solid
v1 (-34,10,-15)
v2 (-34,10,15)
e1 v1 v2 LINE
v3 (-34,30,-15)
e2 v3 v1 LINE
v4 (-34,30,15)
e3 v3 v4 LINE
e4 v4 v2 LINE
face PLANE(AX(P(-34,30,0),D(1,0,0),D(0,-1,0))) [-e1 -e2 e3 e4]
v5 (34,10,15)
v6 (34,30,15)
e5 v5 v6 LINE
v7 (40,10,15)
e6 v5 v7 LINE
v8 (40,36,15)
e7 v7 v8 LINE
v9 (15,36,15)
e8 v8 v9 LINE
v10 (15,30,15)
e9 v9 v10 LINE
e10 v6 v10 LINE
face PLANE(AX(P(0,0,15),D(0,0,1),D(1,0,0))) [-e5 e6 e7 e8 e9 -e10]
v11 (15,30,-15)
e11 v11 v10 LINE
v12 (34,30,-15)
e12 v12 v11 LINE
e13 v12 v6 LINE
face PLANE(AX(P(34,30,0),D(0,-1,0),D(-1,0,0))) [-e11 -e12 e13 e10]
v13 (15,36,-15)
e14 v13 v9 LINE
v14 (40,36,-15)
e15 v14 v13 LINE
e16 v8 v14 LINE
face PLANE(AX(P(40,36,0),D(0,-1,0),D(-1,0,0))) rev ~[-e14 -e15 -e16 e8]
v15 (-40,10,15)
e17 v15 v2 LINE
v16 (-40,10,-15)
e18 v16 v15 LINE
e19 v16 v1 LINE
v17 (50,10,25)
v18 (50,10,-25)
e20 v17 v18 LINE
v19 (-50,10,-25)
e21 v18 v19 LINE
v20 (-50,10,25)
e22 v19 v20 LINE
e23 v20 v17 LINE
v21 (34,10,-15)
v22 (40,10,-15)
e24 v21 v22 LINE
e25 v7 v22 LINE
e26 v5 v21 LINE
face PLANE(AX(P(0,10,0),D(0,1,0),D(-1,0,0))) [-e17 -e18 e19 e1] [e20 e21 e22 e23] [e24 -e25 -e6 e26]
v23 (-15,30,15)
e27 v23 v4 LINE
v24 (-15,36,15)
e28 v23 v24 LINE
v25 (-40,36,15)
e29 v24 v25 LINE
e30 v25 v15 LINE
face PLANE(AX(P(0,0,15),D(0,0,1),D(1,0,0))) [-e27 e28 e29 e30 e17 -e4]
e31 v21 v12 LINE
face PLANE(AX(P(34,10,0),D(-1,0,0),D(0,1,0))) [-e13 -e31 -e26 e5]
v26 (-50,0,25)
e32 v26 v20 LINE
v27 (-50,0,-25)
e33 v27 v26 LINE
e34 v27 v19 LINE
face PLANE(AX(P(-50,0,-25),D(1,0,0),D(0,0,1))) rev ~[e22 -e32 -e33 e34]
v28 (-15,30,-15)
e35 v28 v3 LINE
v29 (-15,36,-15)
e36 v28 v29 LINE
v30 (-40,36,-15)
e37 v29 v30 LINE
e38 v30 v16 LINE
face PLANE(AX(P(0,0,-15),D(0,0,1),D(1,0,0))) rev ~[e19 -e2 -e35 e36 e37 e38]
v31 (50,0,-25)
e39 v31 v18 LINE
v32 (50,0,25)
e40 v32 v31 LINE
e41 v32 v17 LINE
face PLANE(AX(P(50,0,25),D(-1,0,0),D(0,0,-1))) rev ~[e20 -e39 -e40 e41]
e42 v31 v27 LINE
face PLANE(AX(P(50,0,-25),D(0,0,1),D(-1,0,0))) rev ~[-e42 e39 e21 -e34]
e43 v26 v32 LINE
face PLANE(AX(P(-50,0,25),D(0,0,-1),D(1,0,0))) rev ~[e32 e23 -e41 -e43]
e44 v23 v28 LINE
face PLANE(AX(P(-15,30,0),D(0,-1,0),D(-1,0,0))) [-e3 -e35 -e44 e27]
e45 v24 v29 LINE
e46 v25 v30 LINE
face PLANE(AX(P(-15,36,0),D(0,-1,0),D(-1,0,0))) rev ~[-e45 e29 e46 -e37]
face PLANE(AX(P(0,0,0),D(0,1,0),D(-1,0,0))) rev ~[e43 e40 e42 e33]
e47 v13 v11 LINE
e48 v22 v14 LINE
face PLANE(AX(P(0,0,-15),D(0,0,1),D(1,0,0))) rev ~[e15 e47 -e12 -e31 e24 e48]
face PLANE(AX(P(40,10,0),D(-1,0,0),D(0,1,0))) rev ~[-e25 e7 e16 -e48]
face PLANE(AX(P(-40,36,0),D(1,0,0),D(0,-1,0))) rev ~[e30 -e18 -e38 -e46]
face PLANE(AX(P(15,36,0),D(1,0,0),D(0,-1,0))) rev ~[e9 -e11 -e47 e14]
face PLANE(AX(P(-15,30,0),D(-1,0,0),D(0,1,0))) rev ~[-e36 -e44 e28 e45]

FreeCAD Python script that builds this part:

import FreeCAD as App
import Part
import Sketcher
Q = App.Units.Quantity

doc = App.newDocument("Part")
params = doc.addObject("Spreadsheet::Sheet", "Params")
for row, (alias, value) in enumerate([
    ("sketch1_width", "100 mm"),
    ("sketch1_height", "50 mm"),
    ("pad1_length", "10 mm"),
    ("sketch2_width", "6 mm"),
    ("sketch2_height", "20 mm"),
    ("pad2_length", "30 mm"),
], start=1):
    params.set(f"A{row}", alias)
    params.set(f"B{row}", "=" + value)
    params.setAlias(f"B{row}", alias)

body = doc.addObject("PartDesign::Body", "Body")

# Sketch on XZ plane
sketch1 = body.newObject("Sketcher::SketchObject", "Sketch")
sketch1.AttachmentSupport = (doc.getObject("XZ_Plane"), [""])
sketch1.MapMode = "FlatFace"
sketch1.addGeometry(Part.LineSegment(App.Vector(50, 25, 0), App.Vector(50, -25, 0)), False)
sketch1.addGeometry(Part.LineSegment(App.Vector(50, -25, 0), App.Vector(-50, -25, 0)), False)
sketch1.addGeometry(Part.LineSegment(App.Vector(-50, -25, 0), App.Vector(-50, 25, 0)), False)
sketch1.addGeometry(Part.LineSegment(App.Vector(-50, 25, 0), App.Vector(50, 25, 0)), False)
sketch1.addConstraint(Sketcher.Constraint("Coincident", 0, 2, 1, 1))
sketch1.addConstraint(Sketcher.Constraint("Coincident", 1, 2, 2, 1))
sketch1.addConstraint(Sketcher.Constraint("Coincident", 2, 2, 3, 1))
sketch1.addConstraint(Sketcher.Constraint("Coincident", 3, 2, 0, 1))
sketch1.addConstraint(Sketcher.Constraint("Vertical", 0))
sketch1.addConstraint(Sketcher.Constraint("Horizontal", 1))
sketch1.addConstraint(Sketcher.Constraint("Vertical", 2))
sketch1.addConstraint(Sketcher.Constraint("Horizontal", 3))
sketch1.addConstraint(Sketcher.Constraint("Symmetric", 0, 2, 2, 2, -1, 1))
sketch1.addConstraint(Sketcher.Constraint("DistanceX", 1, 2, 1, 1, Q("100 mm")))
sketch1.addConstraint(Sketcher.Constraint("DistanceY", 0, 2, 0, 1, Q("50 mm")))
sketch1.setExpression("Constraints[9]", "Params.sketch1_width")
sketch1.setExpression("Constraints[10]", "Params.sketch1_height")
pad1 = body.newObject("PartDesign::Pad", "Pad")
pad1.Profile = sketch1
pad1.setExpression("Length", "Params.pad1_length")
pad1.Reversed = True

# Sketch on XY plane
sketch2 = body.newObject("Sketcher::SketchObject", "Sketch001")
sketch2.AttachmentSupport = (doc.getObject("XY_Plane"), [""])
sketch2.MapMode = "FlatFace"
sketch2.addGeometry(Part.LineSegment(App.Vector(-40, 36, 0), App.Vector(-40, 10, 0)), False)
sketch2.addGeometry(Part.LineSegment(App.Vector(-40, 10, 0), App.Vector(-34, 10, 0)), False)
sketch2.addGeometry(Part.LineSegment(App.Vector(-34, 10, 0), App.Vector(-34, 30, 0)), False)
sketch2.addGeometry(Part.LineSegment(App.Vector(-34, 30, 0), App.Vector(-15, 30, 0)), False)
sketch2.addGeometry(Part.LineSegment(App.Vector(-15, 30, 0), App.Vector(-15, 36, 0)), False)
sketch2.addGeometry(Part.LineSegment(App.Vector(-15, 36, 0), App.Vector(-40, 36, 0)), False)
sketch2.addGeometry(Part.LineSegment(App.Vector(40, 36, 0), App.Vector(15, 36, 0)), False)
sketch2.addGeometry(Part.LineSegment(App.Vector(15, 36, 0), App.Vector(15, 30, 0)), False)
sketch2.addGeometry(Part.LineSegment(App.Vector(15, 30, 0), App.Vector(34, 30, 0)), False)
sketch2.addGeometry(Part.LineSegment(App.Vector(34, 30, 0), App.Vector(34, 10, 0)), False)
sketch2.addGeometry(Part.LineSegment(App.Vector(34, 10, 0), App.Vector(40, 10, 0)), False)
sketch2.addGeometry(Part.LineSegment(App.Vector(40, 10, 0), App.Vector(40, 36, 0)), False)
sketch2.addConstraint(Sketcher.Constraint("Coincident", 0, 2, 1, 1))
sketch2.addConstraint(Sketcher.Constraint("Coincident", 1, 2, 2, 1))
sketch2.addConstraint(Sketcher.Constraint("Coincident", 2, 2, 3, 1))
sketch2.addConstraint(Sketcher.Constraint("Coincident", 3, 2, 4, 1))
sketch2.addConstraint(Sketcher.Constraint("Coincident", 4, 2, 5, 1))
sketch2.addConstraint(Sketcher.Constraint("Coincident", 5, 2, 0, 1))
sketch2.addConstraint(Sketcher.Constraint("Coincident", 6, 2, 7, 1))
sketch2.addConstraint(Sketcher.Constraint("Coincident", 7, 2, 8, 1))
sketch2.addConstraint(Sketcher.Constraint("Coincident", 8, 2, 9, 1))
sketch2.addConstraint(Sketcher.Constraint("Coincident", 9, 2, 10, 1))
sketch2.addConstraint(Sketcher.Constraint("Coincident", 10, 2, 11, 1))
sketch2.addConstraint(Sketcher.Constraint("Coincident", 11, 2, 6, 1))
sketch2.addConstraint(Sketcher.Constraint("Vertical", 0))
sketch2.addConstraint(Sketcher.Constraint("Horizontal", 1))
sketch2.addConstraint(Sketcher.Constraint("Vertical", 2))
sketch2.addConstraint(Sketcher.Constraint("Horizontal", 3))
sketch2.addConstraint(Sketcher.Constraint("Vertical", 4))
sketch2.addConstraint(Sketcher.Constraint("Horizontal", 5))
sketch2.addConstraint(Sketcher.Constraint("Horizontal", 6))
sketch2.addConstraint(Sketcher.Constraint("Vertical", 7))
sketch2.addConstraint(Sketcher.Constraint("Horizontal", 8))
sketch2.addConstraint(Sketcher.Constraint("Vertical", 9))
sketch2.addConstraint(Sketcher.Constraint("Horizontal", 10))
sketch2.addConstraint(Sketcher.Constraint("Vertical", 11))
sketch2.addConstraint(Sketcher.Constraint("Symmetric", 4, 2, 6, 2, -2))
sketch2.addConstraint(Sketcher.Constraint("Symmetric", 2, 2, 8, 2, -2))
sketch2.addConstraint(Sketcher.Constraint("Symmetric", 0, 2, 10, 2, -2))
sketch2.addConstraint(Sketcher.Constraint("Equal", 10, 4))
sketch2.addConstraint(Sketcher.Constraint("DistanceX", 1, 1, 1, 2, Q("6 mm")))
sketch2.addConstraint(Sketcher.Constraint("DistanceY", 2, 1, 2, 2, Q("20 mm")))
sketch2.addConstraint(Sketcher.Constraint("DistanceY", -1, 1, 2, 2, Q("30 mm")))
sketch2.addConstraint(Sketcher.Constraint("DistanceX", 4, 2, 6, 2, Q("30 mm")))
sketch2.addConstraint(Sketcher.Constraint("DistanceX", 2, 2, 8, 2, Q("68 mm")))
sketch2.setExpression("Constraints[28]", "Params.sketch2_width")
sketch2.setExpression("Constraints[29]", "Params.sketch2_height")
pad2 = body.newObject("PartDesign::Pad", "Pad001")
pad2.Profile = sketch2
pad2.setExpression("Length", "Params.pad2_length")
pad2.Midplane = True

doc.recompute()
